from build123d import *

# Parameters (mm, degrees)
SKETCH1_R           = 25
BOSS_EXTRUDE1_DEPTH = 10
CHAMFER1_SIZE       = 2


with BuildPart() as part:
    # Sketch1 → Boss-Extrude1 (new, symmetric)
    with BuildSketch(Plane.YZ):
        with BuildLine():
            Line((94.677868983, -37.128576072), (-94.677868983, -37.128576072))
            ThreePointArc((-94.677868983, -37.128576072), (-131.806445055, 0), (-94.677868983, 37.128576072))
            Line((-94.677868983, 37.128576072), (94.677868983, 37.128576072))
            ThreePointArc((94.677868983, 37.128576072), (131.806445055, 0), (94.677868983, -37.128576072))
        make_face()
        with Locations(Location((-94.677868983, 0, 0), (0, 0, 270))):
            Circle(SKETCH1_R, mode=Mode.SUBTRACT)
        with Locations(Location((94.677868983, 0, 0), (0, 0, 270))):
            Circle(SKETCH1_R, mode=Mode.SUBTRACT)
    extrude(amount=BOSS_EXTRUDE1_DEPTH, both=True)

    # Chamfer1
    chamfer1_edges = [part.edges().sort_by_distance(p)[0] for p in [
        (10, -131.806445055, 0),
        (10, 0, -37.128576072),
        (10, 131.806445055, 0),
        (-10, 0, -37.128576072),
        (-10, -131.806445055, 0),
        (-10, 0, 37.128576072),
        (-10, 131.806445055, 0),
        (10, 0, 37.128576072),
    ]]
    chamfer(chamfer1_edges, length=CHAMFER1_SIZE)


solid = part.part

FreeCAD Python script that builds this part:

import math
import FreeCAD as App
import Part
import Sketcher
from FreeCAD import Vector
Q = App.Units.Quantity


def edges_at(feature, points):
    """Names of the edges that pass closest to the given points."""
    edges = feature.Shape.Edges
    near = lambda p: min(range(len(edges)), key=lambda i: edges[i].distToShape(Part.Vertex(*p))[0])
    return sorted({f"Edge{near(p) + 1}" for p in points})

doc = App.newDocument("Part")
body = doc.addObject("PartDesign::Body", "Body")

# Sketch on YZ plane
sketch1 = body.newObject("Sketcher::SketchObject", "Sketch")
sketch1.AttachmentSupport = (doc.getObject("YZ_Plane"), [""])
sketch1.MapMode = "FlatFace"
sketch1.addGeometry([
    Part.LineSegment(Vector(-95, -37, 0), Vector(95, -37, 0)),  # 0
    Part.ArcOfCircle(Part.Circle(Vector(95, 0, 0), Vector(0, 0, 1), 37), math.radians(-90), math.radians(90)),  # 1
    Part.LineSegment(Vector(95, 37, 0), Vector(-95, 37, 0)),  # 2
    Part.ArcOfCircle(Part.Circle(Vector(-95, 0, 0), Vector(0, 0, 1), 37), math.radians(90), math.radians(270)),  # 3
    Part.Circle(Vector(95, 0, 0), Vector(0, 0, 1), 25),  # 4
    Part.Circle(Vector(-95, 0, 0), Vector(0, 0, 1), 25),  # 5
], False)
sketch1.addConstraint([
    Sketcher.Constraint("Tangent", 0, 2, 1, 1),
    Sketcher.Constraint("Tangent", 1, 2, 2, 1),
    Sketcher.Constraint("Tangent", 2, 2, 3, 1),
    Sketcher.Constraint("Tangent", 3, 2, 0, 1),
    Sketcher.Constraint("Horizontal", 0),
    Sketcher.Constraint("Horizontal", 2),
    Sketcher.Constraint("Coincident", 4, 3, 1, 3),
    Sketcher.Constraint("Coincident", 5, 3, 3, 3),
    Sketcher.Constraint("Equal", 4, 5),
    Sketcher.Constraint("Symmetric", 1, 3, 3, 3, -1, 1),
    Sketcher.Constraint("Diameter", 4, Q("50 mm")),
    Sketcher.Constraint("Radius", 1, Q("37.128576 mm")),
    Sketcher.Constraint("DistanceX", 0, 1, 0, 2, Q("189.355738 mm")),
])
pad1 = body.newObject("PartDesign::Pad", "Pad")
pad1.Profile = sketch1
pad1.Length = 20
pad1.Midplane = True
doc.recompute()

chamfer = body.newObject("PartDesign::Chamfer", "Chamfer")
chamfer.Base = (pad1, edges_at(pad1, [
    (10, -131.806, 0),
    (10, 0, -37.129),
    (10, 131.806, 0),
    (-10, 0, -37.129),
    (-10, -131.806, 0),
    (-10, 0, 37.129),
    (-10, 131.806, 0),
    (10, 0, 37.129),
]))
chamfer.Size = 2

doc.recompute()
